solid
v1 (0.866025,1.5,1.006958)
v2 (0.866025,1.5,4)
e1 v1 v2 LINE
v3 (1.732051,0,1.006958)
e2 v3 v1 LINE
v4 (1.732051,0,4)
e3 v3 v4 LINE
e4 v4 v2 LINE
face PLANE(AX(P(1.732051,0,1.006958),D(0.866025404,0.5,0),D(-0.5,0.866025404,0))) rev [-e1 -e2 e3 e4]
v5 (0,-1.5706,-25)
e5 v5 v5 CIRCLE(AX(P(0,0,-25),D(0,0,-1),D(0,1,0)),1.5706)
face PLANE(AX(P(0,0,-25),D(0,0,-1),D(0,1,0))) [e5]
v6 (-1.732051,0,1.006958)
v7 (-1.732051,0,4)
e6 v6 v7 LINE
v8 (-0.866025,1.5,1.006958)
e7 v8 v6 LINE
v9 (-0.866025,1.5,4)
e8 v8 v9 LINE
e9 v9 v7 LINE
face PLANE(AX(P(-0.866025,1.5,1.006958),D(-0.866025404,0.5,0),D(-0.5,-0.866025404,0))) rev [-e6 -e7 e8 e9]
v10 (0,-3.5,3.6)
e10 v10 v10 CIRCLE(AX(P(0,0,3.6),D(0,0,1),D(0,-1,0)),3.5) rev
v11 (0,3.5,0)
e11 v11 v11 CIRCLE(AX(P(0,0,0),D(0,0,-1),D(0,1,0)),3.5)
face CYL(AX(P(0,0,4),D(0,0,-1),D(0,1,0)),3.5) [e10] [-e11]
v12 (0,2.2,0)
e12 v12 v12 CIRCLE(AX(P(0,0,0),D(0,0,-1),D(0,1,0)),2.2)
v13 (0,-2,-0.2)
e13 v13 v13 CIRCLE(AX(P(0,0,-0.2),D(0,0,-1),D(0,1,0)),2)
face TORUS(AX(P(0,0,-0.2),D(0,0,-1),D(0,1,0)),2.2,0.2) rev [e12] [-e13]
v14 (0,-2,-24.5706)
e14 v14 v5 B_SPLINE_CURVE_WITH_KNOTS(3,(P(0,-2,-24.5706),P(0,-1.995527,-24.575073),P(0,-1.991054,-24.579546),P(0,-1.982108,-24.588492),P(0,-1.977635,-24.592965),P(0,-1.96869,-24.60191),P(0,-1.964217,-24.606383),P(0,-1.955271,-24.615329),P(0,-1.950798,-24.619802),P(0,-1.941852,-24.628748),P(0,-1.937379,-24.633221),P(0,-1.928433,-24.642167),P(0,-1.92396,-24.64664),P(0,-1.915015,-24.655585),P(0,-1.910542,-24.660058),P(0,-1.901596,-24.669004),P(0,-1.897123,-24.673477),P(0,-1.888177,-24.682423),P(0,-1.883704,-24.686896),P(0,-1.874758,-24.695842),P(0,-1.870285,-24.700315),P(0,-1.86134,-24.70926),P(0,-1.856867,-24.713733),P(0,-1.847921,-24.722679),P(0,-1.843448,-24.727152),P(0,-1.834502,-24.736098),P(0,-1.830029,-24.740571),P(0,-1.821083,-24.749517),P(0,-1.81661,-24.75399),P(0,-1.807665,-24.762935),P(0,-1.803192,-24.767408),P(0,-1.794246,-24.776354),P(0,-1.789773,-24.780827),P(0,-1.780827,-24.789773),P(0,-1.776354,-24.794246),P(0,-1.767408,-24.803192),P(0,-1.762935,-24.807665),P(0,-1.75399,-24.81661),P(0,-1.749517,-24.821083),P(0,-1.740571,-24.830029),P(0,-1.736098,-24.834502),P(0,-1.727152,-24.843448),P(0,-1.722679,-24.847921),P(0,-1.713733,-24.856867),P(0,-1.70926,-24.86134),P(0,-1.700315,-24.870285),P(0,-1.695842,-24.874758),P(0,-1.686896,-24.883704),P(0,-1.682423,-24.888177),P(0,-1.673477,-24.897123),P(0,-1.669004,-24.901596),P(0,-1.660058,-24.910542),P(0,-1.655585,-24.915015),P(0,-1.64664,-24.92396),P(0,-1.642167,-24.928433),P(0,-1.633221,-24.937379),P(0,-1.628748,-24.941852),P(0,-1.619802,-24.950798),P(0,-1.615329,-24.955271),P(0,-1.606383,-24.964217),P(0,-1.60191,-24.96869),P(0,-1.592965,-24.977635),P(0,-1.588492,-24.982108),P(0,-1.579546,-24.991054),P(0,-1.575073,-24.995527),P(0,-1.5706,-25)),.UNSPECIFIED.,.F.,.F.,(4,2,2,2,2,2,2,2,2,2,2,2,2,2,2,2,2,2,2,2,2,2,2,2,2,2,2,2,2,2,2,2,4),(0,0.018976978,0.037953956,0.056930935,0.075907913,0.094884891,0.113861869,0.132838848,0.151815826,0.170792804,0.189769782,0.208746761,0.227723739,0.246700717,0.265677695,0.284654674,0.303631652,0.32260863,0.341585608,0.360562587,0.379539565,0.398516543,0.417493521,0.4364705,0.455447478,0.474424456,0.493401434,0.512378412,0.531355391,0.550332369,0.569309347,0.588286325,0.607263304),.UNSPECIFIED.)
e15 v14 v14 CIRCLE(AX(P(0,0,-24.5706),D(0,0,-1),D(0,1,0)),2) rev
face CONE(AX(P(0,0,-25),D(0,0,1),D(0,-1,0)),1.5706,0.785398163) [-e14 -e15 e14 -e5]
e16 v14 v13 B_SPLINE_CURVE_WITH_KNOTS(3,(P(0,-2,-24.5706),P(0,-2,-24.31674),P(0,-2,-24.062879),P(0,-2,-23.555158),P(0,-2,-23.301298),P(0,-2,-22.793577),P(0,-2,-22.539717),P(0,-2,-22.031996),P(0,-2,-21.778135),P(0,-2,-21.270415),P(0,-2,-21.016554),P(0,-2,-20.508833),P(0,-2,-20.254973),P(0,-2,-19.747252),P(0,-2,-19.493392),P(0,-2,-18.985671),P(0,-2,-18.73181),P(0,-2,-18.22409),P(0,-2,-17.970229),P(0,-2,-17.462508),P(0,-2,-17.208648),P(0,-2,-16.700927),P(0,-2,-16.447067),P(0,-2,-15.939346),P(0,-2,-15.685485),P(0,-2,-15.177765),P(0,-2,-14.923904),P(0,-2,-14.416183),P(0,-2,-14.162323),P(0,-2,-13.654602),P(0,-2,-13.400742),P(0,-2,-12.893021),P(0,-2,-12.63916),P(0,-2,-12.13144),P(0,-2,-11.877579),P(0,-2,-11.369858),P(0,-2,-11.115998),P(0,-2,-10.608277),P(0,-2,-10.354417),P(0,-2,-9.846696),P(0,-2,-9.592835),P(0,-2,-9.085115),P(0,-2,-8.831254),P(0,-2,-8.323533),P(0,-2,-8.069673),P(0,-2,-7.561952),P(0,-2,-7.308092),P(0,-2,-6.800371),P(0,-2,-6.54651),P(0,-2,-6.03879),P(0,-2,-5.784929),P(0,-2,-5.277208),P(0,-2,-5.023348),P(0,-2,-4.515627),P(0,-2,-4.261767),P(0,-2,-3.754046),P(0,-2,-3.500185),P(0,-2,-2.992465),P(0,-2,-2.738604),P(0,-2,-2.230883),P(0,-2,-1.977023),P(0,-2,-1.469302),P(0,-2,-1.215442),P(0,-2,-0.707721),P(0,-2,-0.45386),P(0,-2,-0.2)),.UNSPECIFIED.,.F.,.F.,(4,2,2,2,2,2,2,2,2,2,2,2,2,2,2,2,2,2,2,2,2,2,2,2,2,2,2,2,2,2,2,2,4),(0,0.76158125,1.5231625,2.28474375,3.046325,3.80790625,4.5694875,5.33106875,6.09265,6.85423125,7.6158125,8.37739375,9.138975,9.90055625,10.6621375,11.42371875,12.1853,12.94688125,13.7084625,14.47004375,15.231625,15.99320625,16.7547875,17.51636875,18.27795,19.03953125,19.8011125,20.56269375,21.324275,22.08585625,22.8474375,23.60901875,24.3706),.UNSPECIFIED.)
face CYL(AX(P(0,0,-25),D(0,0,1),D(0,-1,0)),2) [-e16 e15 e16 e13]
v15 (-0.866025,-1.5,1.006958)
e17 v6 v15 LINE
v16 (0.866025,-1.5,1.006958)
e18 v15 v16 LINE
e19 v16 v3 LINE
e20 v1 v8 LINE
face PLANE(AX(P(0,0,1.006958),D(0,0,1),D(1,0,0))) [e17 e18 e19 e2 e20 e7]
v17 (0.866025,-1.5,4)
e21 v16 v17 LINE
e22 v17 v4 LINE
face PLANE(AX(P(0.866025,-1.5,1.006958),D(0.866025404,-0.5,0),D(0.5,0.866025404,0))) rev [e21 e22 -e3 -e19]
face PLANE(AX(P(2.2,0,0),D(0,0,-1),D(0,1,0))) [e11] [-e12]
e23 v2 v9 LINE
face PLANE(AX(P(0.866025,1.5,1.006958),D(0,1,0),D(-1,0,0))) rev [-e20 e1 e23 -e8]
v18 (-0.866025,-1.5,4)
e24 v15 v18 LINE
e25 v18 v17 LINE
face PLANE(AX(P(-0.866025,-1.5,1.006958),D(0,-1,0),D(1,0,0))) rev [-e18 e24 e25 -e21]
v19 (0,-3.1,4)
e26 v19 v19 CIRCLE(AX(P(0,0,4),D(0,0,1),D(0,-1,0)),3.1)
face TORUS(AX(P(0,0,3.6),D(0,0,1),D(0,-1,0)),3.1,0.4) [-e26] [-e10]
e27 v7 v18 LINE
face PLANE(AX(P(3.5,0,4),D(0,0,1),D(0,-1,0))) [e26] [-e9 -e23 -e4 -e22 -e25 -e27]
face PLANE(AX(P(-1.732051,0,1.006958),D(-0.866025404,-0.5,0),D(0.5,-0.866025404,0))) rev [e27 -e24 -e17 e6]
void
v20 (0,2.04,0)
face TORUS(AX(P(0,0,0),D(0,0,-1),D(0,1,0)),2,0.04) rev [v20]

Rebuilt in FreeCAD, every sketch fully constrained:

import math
import FreeCAD as App
import Part
import Sketcher
from FreeCAD import Vector
Q = App.Units.Quantity


def edges_at(feature, points):
    """Names of the edges that pass closest to the given points."""
    edges = feature.Shape.Edges
    near = lambda p: min(range(len(edges)), key=lambda i: edges[i].distToShape(Part.Vertex(*p))[0])
    return sorted({f"Edge{near(p) + 1}" for p in points})

doc = App.newDocument("Part")
body = doc.addObject("PartDesign::Body", "Body")

sketch1 = body.newObject("Sketcher::SketchObject", "Sketch")
sketch1.AttachmentSupport = (doc.getObject("XZ_Plane"), [""])
sketch1.MapMode = "FlatFace"
sketch1.addGeometry(Part.LineSegment(Vector(3.5, 4, 0), Vector(0, 4, 0)), False)
sketch1.addGeometry(Part.LineSegment(Vector(0, 4, 0), Vector(0, -0.2, 0)), False)
sketch1.addGeometry(Part.LineSegment(Vector(0, -0.2, 0), Vector(2, -0.2, 0)), False)
sketch1.addGeometry(Part.ArcOfCircle(Part.Circle(Vector(2.2, -0.2, 0), Vector(0, 0, 1), 0.2), math.radians(90), math.radians(180)), False)
sketch1.addGeometry(Part.LineSegment(Vector(2.2, 0, 0), Vector(3.5, 0, 0)), False)
sketch1.addGeometry(Part.LineSegment(Vector(3.5, 0, 0), Vector(3.5, 4, 0)), False)
sketch1.addGeometry(Part.Circle(Vector(2, 0, 0), Vector(0, 0, 1), 0.04), False)
sketch1.addConstraint(Sketcher.Constraint("Coincident", 0, 2, 1, 1))
sketch1.addConstraint(Sketcher.Constraint("Coincident", 1, 2, 2, 1))
sketch1.addConstraint(Sketcher.Constraint("Coincident", 2, 2, 3, 2))
sketch1.addConstraint(Sketcher.Constraint("Tangent", 3, 1, 4, 1))
sketch1.addConstraint(Sketcher.Constraint("Coincident", 4, 2, 5, 1))
sketch1.addConstraint(Sketcher.Constraint("Coincident", 5, 2, 0, 1))
sketch1.addConstraint(Sketcher.Constraint("Horizontal", 0))
sketch1.addConstraint(Sketcher.Constraint("Vertical", 1))
sketch1.addConstraint(Sketcher.Constraint("Horizontal", 2))
sketch1.addConstraint(Sketcher.Constraint("Horizontal", 4))
sketch1.addConstraint(Sketcher.Constraint("Vertical", 5))
sketch1.addConstraint(Sketcher.Constraint("PointOnObject", 6, 3, -1))
sketch1.addConstraint(Sketcher.Constraint("PointOnObject", 0, 2, -2))
sketch1.addConstraint(Sketcher.Constraint("PointOnObject", 3, 1, -1))
sketch1.addConstraint(Sketcher.Constraint("Horizontal", 3, 3, 1, 2))
sketch1.addConstraint(Sketcher.Constraint("Vertical", 6, 3, 2, 2))
sketch1.addConstraint(Sketcher.Constraint("Radius", 3, 0.2))
sketch1.addConstraint(Sketcher.Constraint("Diameter", 6, 0.08))
sketch1.addConstraint(Sketcher.Constraint("DistanceX", 2, 1, 2, 2, 2.0))
sketch1.addConstraint(Sketcher.Constraint("DistanceY", 5, 1, 5, 2, 4.0))
sketch1.addConstraint(Sketcher.Constraint("DistanceX", 0, 2, 0, 1, 3.5))
revolution = body.newObject("PartDesign::Revolution", "Revolution")
revolution.Profile = sketch1
revolution.ReferenceAxis = (sketch1, ["V_Axis"])
revolution.Angle = 360

sketch2 = body.newObject("Sketcher::SketchObject", "Sketch001")
sketch2.AttachmentSupport = (doc.getObject("XY_Plane"), [""])
sketch2.MapMode = "FlatFace"
sketch2.AttachmentOffset = App.Placement(Vector(0, 0, 4), App.Rotation())
sketch2.addGeometry(Part.LineSegment(Vector(1.7, 0, 0), Vector(0.9, 1.5, 0)), False)
sketch2.addGeometry(Part.LineSegment(Vector(0.9, 1.5, 0), Vector(-0.9, 1.5, 0)), False)
sketch2.addGeometry(Part.LineSegment(Vector(-0.9, 1.5, 0), Vector(-1.7, 0, 0)), False)
sketch2.addGeometry(Part.LineSegment(Vector(-1.7, 0, 0), Vector(-0.9, -1.5, 0)), False)
sketch2.addGeometry(Part.LineSegment(Vector(-0.9, -1.5, 0), Vector(0.9, -1.5, 0)), False)
sketch2.addGeometry(Part.LineSegment(Vector(0.9, -1.5, 0), Vector(1.7, 0, 0)), False)
sketch2.addConstraint(Sketcher.Constraint("Coincident", 0, 2, 1, 1))
sketch2.addConstraint(Sketcher.Constraint("Coincident", 1, 2, 2, 1))
sketch2.addConstraint(Sketcher.Constraint("Coincident", 2, 2, 3, 1))
sketch2.addConstraint(Sketcher.Constraint("Coincident", 3, 2, 4, 1))
sketch2.addConstraint(Sketcher.Constraint("Coincident", 4, 2, 5, 1))
sketch2.addConstraint(Sketcher.Constraint("Coincident", 5, 2, 0, 1))
sketch2.addConstraint(Sketcher.Constraint("Horizontal", 1))
sketch2.addConstraint(Sketcher.Constraint("Horizontal", 4))
sketch2.addConstraint(Sketcher.Constraint("Symmetric", 0, 2, 3, 2, -1, 1))
sketch2.addConstraint(Sketcher.Constraint("Symmetric", 2, 2, 5, 2, -1, 1))
sketch2.addConstraint(Sketcher.Constraint("PointOnObject", 2, 2, -1))
sketch2.addConstraint(Sketcher.Constraint("Parallel", 2, 5))
sketch2.addConstraint(Sketcher.Constraint("Vertical", 1, 2, 3, 2))
sketch2.addConstraint(Sketcher.Constraint("Angle", 0, Q("120 deg")))
sketch2.addConstraint(Sketcher.Constraint("DistanceY", 3, 2, 1, 2, 3.0))
sketch2.addConstraint(Sketcher.Constraint("DistanceX", 1, 2, 1, 1, 1.732051))
pocket1 = body.newObject("PartDesign::Pocket", "Pocket")
pocket1.Profile = sketch2
pocket1.Length = 2.993042

sketch3 = body.newObject("Sketcher::SketchObject", "Sketch002")
sketch3.AttachmentSupport = (doc.getObject("XY_Plane"), [""])
sketch3.MapMode = "FlatFace"
sketch3.AttachmentOffset = App.Placement(Vector(0, 0, -0.2), App.Rotation())
sketch3.addGeometry(Part.Circle(Vector(0, 0, 0), Vector(0, 0, 1), 2), False)
sketch3.addConstraint(Sketcher.Constraint("Coincident", 0, 3, -1, 1))
sketch3.addConstraint(Sketcher.Constraint("Diameter", 0, 4.0))
pad1 = body.newObject("PartDesign::Pad", "Pad")
pad1.Profile = sketch3
pad1.Length = 24.8
pad1.Reversed = True
doc.recompute()

chamfer = body.newObject("PartDesign::Chamfer", "Chamfer")
chamfer.Base = (pad1, edges_at(pad1, [(0, 2, -25)]))
chamfer.Size = 0.4294
doc.recompute()

fillet = body.newObject("PartDesign::Fillet", "Fillet")
fillet.Base = (chamfer, edges_at(chamfer, [(0, -3.5, 4)]))
fillet.Radius = 0.4

doc.recompute()
